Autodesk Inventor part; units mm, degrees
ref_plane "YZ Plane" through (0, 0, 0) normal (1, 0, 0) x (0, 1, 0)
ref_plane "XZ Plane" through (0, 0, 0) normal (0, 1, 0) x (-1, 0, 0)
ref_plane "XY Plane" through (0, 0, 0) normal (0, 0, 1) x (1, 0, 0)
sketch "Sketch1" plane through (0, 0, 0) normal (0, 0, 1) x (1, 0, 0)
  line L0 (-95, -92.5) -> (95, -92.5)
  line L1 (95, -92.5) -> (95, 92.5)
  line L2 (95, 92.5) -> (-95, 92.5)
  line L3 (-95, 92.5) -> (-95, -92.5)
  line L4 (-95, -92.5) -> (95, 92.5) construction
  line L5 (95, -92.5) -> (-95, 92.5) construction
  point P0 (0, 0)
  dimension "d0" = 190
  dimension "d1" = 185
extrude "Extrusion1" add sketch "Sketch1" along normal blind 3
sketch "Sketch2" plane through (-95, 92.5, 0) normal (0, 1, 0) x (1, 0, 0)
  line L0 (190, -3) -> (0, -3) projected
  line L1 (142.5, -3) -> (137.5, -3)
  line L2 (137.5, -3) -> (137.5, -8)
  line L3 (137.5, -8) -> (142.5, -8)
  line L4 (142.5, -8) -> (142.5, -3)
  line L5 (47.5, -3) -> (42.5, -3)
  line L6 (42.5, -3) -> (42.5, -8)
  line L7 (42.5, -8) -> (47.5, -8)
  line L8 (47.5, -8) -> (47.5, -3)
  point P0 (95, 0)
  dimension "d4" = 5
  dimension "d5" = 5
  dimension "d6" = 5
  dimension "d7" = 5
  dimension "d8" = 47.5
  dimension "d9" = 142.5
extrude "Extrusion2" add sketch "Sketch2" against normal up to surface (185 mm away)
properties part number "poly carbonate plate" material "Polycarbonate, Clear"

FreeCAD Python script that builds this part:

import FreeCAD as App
import Part
import Sketcher
from FreeCAD import Vector
Q = App.Units.Quantity


def add_polygon(sketch, points):
    """Adds a closed chain of lines whose ends are joined by coincident constraints."""
    first, n = sketch.GeometryCount, len(points)
    for a, b in zip(points, points[1:] + points[:1]):
        sketch.addGeometry(Part.LineSegment(App.Vector(*a, 0), App.Vector(*b, 0)), False)
    for i in range(n):
        sketch.addConstraint(Sketcher.Constraint("Coincident", first + i, 2, first + (i + 1) % n, 1))

doc = App.newDocument("Part")
body = doc.addObject("PartDesign::Body", "Body")

# Sketch on XY plane
sketch1 = doc.addObject("Sketcher::SketchObject", "Sketch")
body.addObject(sketch1)
sketch1.AttachmentSupport = (doc.XY_Plane, [""])
sketch1.MapMode = "FlatFace"
add_polygon(sketch1, [(-95, 92), (-95, -92), (95, -92), (95, 92)])  # lines 0-3
sketch1.addConstraint(Sketcher.Constraint("Vertical", 0))
sketch1.addConstraint(Sketcher.Constraint("Horizontal", 1))
sketch1.addConstraint(Sketcher.Constraint("Vertical", 2))
sketch1.addConstraint(Sketcher.Constraint("Horizontal", 3))
sketch1.addConstraint(Sketcher.Constraint("Symmetric", 0, 2, 2, 2, -1, 1))
sketch1.addConstraint(Sketcher.Constraint("DistanceX", 1, 1, 1, 2, Q("190 mm")))
sketch1.addConstraint(Sketcher.Constraint("DistanceY", 0, 2, 0, 1, Q("185 mm")))
pad1 = doc.addObject("PartDesign::Pad", "Pad")
body.addObject(pad1)
pad1.Profile = sketch1
pad1.Length = 3

# Sketch on XZ plane
sketch2 = doc.addObject("Sketcher::SketchObject", "Sketch001")
body.addObject(sketch2)
sketch2.AttachmentSupport = (doc.XZ_Plane, [""])
sketch2.MapMode = "FlatFace"
sketch2.AttachmentOffset = App.Placement(Vector(0, 0, -92.5), App.Rotation())
add_polygon(sketch2, [(48, 8), (48, 3), (42, 3), (42, 8)])  # lines 0-3
add_polygon(sketch2, [(-48, 8), (-48, 3), (-52, 3), (-52, 8)])  # lines 4-7
sketch2.addConstraint(Sketcher.Constraint("Vertical", 0))
sketch2.addConstraint(Sketcher.Constraint("Horizontal", 1))
sketch2.addConstraint(Sketcher.Constraint("Vertical", 2))
sketch2.addConstraint(Sketcher.Constraint("Horizontal", 3))
sketch2.addConstraint(Sketcher.Constraint("Vertical", 4))
sketch2.addConstraint(Sketcher.Constraint("Horizontal", 5))
sketch2.addConstraint(Sketcher.Constraint("Vertical", 6))
sketch2.addConstraint(Sketcher.Constraint("Horizontal", 7))
sketch2.addConstraint(Sketcher.Constraint("Symmetric", 0, 2, 4, 2, -2))
sketch2.addConstraint(Sketcher.Constraint("Horizontal", 3, 2, 6, 2))
sketch2.addConstraint(Sketcher.Constraint("Equal", 3, 5))
sketch2.addConstraint(Sketcher.Constraint("Equal", 7, 0))
sketch2.addConstraint(Sketcher.Constraint("DistanceX", 1, 2, 1, 1, Q("5 mm")))
sketch2.addConstraint(Sketcher.Constraint("DistanceX", -1, 1, 0, 2, Q("47.5 mm")))
sketch2.addConstraint(Sketcher.Constraint("DistanceY", -1, 1, 0, 2, Q("3 mm")))
pad2 = doc.addObject("PartDesign::Pad", "Pad001")
body.addObject(pad2)
pad2.Profile = sketch2
pad2.Length = 185

doc.recompute()
